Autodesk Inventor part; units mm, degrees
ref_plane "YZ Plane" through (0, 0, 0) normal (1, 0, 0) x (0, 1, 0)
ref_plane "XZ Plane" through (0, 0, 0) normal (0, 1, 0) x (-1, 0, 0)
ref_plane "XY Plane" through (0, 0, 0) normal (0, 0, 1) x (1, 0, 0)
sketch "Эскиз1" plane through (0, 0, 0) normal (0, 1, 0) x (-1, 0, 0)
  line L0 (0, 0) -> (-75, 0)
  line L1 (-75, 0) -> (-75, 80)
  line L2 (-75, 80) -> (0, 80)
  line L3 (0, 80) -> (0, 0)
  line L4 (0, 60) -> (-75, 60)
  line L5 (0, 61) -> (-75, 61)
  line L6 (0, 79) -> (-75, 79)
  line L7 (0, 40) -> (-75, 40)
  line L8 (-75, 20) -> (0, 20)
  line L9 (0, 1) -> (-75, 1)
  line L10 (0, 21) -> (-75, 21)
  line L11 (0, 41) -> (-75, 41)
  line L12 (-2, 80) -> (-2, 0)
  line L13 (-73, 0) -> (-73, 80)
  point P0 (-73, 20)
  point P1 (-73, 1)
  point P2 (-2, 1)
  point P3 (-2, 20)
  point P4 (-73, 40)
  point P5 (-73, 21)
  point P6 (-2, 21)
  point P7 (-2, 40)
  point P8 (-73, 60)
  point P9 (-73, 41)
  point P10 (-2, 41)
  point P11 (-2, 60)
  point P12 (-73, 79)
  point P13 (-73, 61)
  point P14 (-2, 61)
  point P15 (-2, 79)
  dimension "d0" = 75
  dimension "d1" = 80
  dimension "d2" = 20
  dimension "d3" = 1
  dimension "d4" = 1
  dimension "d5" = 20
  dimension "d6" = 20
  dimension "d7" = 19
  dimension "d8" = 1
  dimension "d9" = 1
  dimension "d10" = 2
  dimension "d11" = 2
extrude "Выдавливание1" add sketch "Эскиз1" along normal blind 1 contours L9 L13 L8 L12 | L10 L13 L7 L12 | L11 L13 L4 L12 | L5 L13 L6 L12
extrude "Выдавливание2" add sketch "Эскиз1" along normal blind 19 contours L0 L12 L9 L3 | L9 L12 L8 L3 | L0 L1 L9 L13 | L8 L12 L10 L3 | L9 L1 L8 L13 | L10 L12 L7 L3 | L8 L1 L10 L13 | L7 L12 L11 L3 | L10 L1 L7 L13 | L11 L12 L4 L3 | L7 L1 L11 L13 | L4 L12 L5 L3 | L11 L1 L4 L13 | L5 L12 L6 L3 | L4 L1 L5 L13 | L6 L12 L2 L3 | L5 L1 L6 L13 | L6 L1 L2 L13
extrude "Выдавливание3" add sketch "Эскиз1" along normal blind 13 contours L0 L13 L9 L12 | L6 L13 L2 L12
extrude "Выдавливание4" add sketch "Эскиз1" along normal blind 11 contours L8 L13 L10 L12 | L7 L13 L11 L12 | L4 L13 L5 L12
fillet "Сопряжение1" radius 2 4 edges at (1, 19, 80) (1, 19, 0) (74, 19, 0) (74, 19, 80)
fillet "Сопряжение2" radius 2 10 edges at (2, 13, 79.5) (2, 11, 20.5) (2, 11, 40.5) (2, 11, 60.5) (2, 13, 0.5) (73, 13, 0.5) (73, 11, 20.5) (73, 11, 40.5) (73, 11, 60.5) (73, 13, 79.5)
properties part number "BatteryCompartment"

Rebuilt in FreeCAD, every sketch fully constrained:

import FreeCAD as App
import Part
import Sketcher
Q = App.Units.Quantity


def edges_at(feature, points):
    """Names of the edges that pass closest to the given points."""
    edges = feature.Shape.Edges
    near = lambda p: min(range(len(edges)), key=lambda i: edges[i].distToShape(Part.Vertex(*p))[0])
    return sorted({f"Edge{near(p) + 1}" for p in points})


def add_polygon(sketch, points):
    """Adds a closed chain of lines whose ends are joined by coincident constraints."""
    first, n = sketch.GeometryCount, len(points)
    for a, b in zip(points, points[1:] + points[:1]):
        sketch.addGeometry(Part.LineSegment(App.Vector(*a, 0), App.Vector(*b, 0)), False)
    for i in range(n):
        sketch.addConstraint(Sketcher.Constraint("Coincident", first + i, 2, first + (i + 1) % n, 1))

doc = App.newDocument("Part")
body = doc.addObject("PartDesign::Body", "Body")
body.AllowCompound = True

sketch1 = body.newObject("Sketcher::SketchObject", "Sketch")
sketch1.AttachmentSupport = (doc.getObject("XZ_Plane"), [""])
sketch1.MapMode = "FlatFace"
add_polygon(sketch1, [(73, 1), (2, 1), (2, 20), (73, 20)])
add_polygon(sketch1, [(73, 21), (2, 21), (2, 40), (73, 40)])
add_polygon(sketch1, [(73, 41), (2, 41), (2, 60), (73, 60)])
add_polygon(sketch1, [(73, 61), (2, 61), (2, 79), (73, 79)])
sketch1.addConstraint(Sketcher.Constraint("Horizontal", 0))
sketch1.addConstraint(Sketcher.Constraint("Vertical", 1))
sketch1.addConstraint(Sketcher.Constraint("Horizontal", 2))
sketch1.addConstraint(Sketcher.Constraint("Vertical", 3))
sketch1.addConstraint(Sketcher.Constraint("Horizontal", 4))
sketch1.addConstraint(Sketcher.Constraint("Vertical", 5))
sketch1.addConstraint(Sketcher.Constraint("Horizontal", 6))
sketch1.addConstraint(Sketcher.Constraint("Vertical", 7))
sketch1.addConstraint(Sketcher.Constraint("Horizontal", 8))
sketch1.addConstraint(Sketcher.Constraint("Vertical", 9))
sketch1.addConstraint(Sketcher.Constraint("Horizontal", 10))
sketch1.addConstraint(Sketcher.Constraint("Vertical", 11))
sketch1.addConstraint(Sketcher.Constraint("Horizontal", 12))
sketch1.addConstraint(Sketcher.Constraint("Vertical", 13))
sketch1.addConstraint(Sketcher.Constraint("Horizontal", 14))
sketch1.addConstraint(Sketcher.Constraint("Vertical", 15))
sketch1.addConstraint(Sketcher.Constraint("Vertical", 1, 2, 4, 2))
sketch1.addConstraint(Sketcher.Constraint("Vertical", 3, 2, 6, 2))
sketch1.addConstraint(Sketcher.Constraint("Vertical", 5, 2, 8, 2))
sketch1.addConstraint(Sketcher.Constraint("Vertical", 7, 2, 10, 2))
sketch1.addConstraint(Sketcher.Constraint("Vertical", 9, 2, 12, 2))
sketch1.addConstraint(Sketcher.Constraint("Vertical", 11, 2, 14, 2))
sketch1.addConstraint(Sketcher.Constraint("Equal", 3, 5))
sketch1.addConstraint(Sketcher.Constraint("Equal", 7, 9))
sketch1.addConstraint(Sketcher.Constraint("DistanceY", 1, 1, 1, 2, Q("19 mm")))
sketch1.addConstraint(Sketcher.Constraint("DistanceX", -1, 1, 0, 2, Q("2 mm")))
sketch1.addConstraint(Sketcher.Constraint("DistanceY", -1, 1, 0, 2, Q("1 mm")))
sketch1.addConstraint(Sketcher.Constraint("DistanceY", 1, 2, 4, 2, Q("1 mm")))
sketch1.addConstraint(Sketcher.Constraint("DistanceY", 5, 2, 8, 2, Q("1 mm")))
sketch1.addConstraint(Sketcher.Constraint("DistanceY", 9, 2, 12, 2, Q("1 mm")))
sketch1.addConstraint(Sketcher.Constraint("DistanceY", 9, 2, 13, 2, Q("19 mm")))
sketch1.addConstraint(Sketcher.Constraint("DistanceX", 0, 2, 0, 1, Q("71 mm")))
pad1 = body.newObject("PartDesign::Pad", "Pad")
pad1.Profile = sketch1
pad1.Length = 1
pad1.Reversed = True

sketch2 = body.newObject("Sketcher::SketchObject", "Sketch001")
sketch2.AttachmentSupport = (doc.getObject("XZ_Plane"), [""])
sketch2.MapMode = "FlatFace"
add_polygon(sketch2, [(2, 0), (0, 0), (0, 80), (2, 80)])
add_polygon(sketch2, [(75, 0), (73, 0), (73, 80), (75, 80)])
sketch2.addConstraint(Sketcher.Constraint("Horizontal", 0))
sketch2.addConstraint(Sketcher.Constraint("Vertical", 1))
sketch2.addConstraint(Sketcher.Constraint("Horizontal", 2))
sketch2.addConstraint(Sketcher.Constraint("Vertical", 3))
sketch2.addConstraint(Sketcher.Constraint("Horizontal", 4))
sketch2.addConstraint(Sketcher.Constraint("Vertical", 5))
sketch2.addConstraint(Sketcher.Constraint("Horizontal", 6))
sketch2.addConstraint(Sketcher.Constraint("Vertical", 7))
sketch2.addConstraint(Sketcher.Constraint("Coincident", 0, 2, -1, 1))
sketch2.addConstraint(Sketcher.Constraint("PointOnObject", 4, 2, -1))
sketch2.addConstraint(Sketcher.Constraint("Horizontal", 2, 2, 5, 2))
sketch2.addConstraint(Sketcher.Constraint("Equal", 2, 4))
sketch2.addConstraint(Sketcher.Constraint("DistanceX", 0, 2, 0, 1, Q("2 mm")))
sketch2.addConstraint(Sketcher.Constraint("DistanceY", 1, 1, 1, 2, Q("80 mm")))
sketch2.addConstraint(Sketcher.Constraint("DistanceX", -1, 1, 6, 2, Q("75 mm")))
pad2 = body.newObject("PartDesign::Pad", "Pad001")
pad2.Profile = sketch2
pad2.Length = 19
pad2.Reversed = True

sketch3 = body.newObject("Sketcher::SketchObject", "Sketch002")
sketch3.AttachmentSupport = (doc.getObject("XZ_Plane"), [""])
sketch3.MapMode = "FlatFace"
add_polygon(sketch3, [(73, 0), (2, 0), (2, 1), (73, 1)])
add_polygon(sketch3, [(73, 79), (2, 79), (2, 80), (73, 80)])
sketch3.addConstraint(Sketcher.Constraint("Horizontal", 0))
sketch3.addConstraint(Sketcher.Constraint("Vertical", 1))
sketch3.addConstraint(Sketcher.Constraint("Horizontal", 2))
sketch3.addConstraint(Sketcher.Constraint("Vertical", 3))
sketch3.addConstraint(Sketcher.Constraint("Horizontal", 4))
sketch3.addConstraint(Sketcher.Constraint("Vertical", 5))
sketch3.addConstraint(Sketcher.Constraint("Horizontal", 6))
sketch3.addConstraint(Sketcher.Constraint("Vertical", 7))
sketch3.addConstraint(Sketcher.Constraint("PointOnObject", 0, 2, -1))
sketch3.addConstraint(Sketcher.Constraint("Vertical", 1, 2, 4, 2))
sketch3.addConstraint(Sketcher.Constraint("Vertical", 3, 2, 6, 2))
sketch3.addConstraint(Sketcher.Constraint("Equal", 3, 5))
sketch3.addConstraint(Sketcher.Constraint("DistanceY", 1, 1, 1, 2, Q("1 mm")))
sketch3.addConstraint(Sketcher.Constraint("DistanceX", -1, 1, 0, 2, Q("2 mm")))
sketch3.addConstraint(Sketcher.Constraint("DistanceY", -1, 1, 5, 2, Q("80 mm")))
sketch3.addConstraint(Sketcher.Constraint("DistanceX", 0, 2, 0, 1, Q("71 mm")))
pad3 = body.newObject("PartDesign::Pad", "Pad002")
pad3.Profile = sketch3
pad3.Length = 13
pad3.Reversed = True

sketch4 = body.newObject("Sketcher::SketchObject", "Sketch003")
sketch4.AttachmentSupport = (doc.getObject("XZ_Plane"), [""])
sketch4.MapMode = "FlatFace"
add_polygon(sketch4, [(73, 20), (2, 20), (2, 21), (73, 21)])
add_polygon(sketch4, [(73, 40), (2, 40), (2, 41), (73, 41)])
add_polygon(sketch4, [(73, 60), (2, 60), (2, 61), (73, 61)])
sketch4.addConstraint(Sketcher.Constraint("Horizontal", 0))
sketch4.addConstraint(Sketcher.Constraint("Vertical", 1))
sketch4.addConstraint(Sketcher.Constraint("Horizontal", 2))
sketch4.addConstraint(Sketcher.Constraint("Vertical", 3))
sketch4.addConstraint(Sketcher.Constraint("Horizontal", 4))
sketch4.addConstraint(Sketcher.Constraint("Vertical", 5))
sketch4.addConstraint(Sketcher.Constraint("Horizontal", 6))
sketch4.addConstraint(Sketcher.Constraint("Vertical", 7))
sketch4.addConstraint(Sketcher.Constraint("Horizontal", 8))
sketch4.addConstraint(Sketcher.Constraint("Vertical", 9))
sketch4.addConstraint(Sketcher.Constraint("Horizontal", 10))
sketch4.addConstraint(Sketcher.Constraint("Vertical", 11))
sketch4.addConstraint(Sketcher.Constraint("Vertical", 1, 2, 4, 2))
sketch4.addConstraint(Sketcher.Constraint("Vertical", 3, 2, 6, 2))
sketch4.addConstraint(Sketcher.Constraint("Vertical", 5, 2, 8, 2))
sketch4.addConstraint(Sketcher.Constraint("Vertical", 7, 2, 10, 2))
sketch4.addConstraint(Sketcher.Constraint("Equal", 3, 5))
sketch4.addConstraint(Sketcher.Constraint("Equal", 7, 9))
sketch4.addConstraint(Sketcher.Constraint("DistanceY", 1, 1, 1, 2, Q("1 mm")))
sketch4.addConstraint(Sketcher.Constraint("DistanceX", -1, 1, 0, 2, Q("2 mm")))
sketch4.addConstraint(Sketcher.Constraint("DistanceY", -1, 1, 0, 2, Q("20 mm")))
sketch4.addConstraint(Sketcher.Constraint("DistanceY", 1, 2, 4, 2, Q("19 mm")))
sketch4.addConstraint(Sketcher.Constraint("DistanceY", 5, 2, 8, 2, Q("19 mm")))
sketch4.addConstraint(Sketcher.Constraint("DistanceX", 0, 2, 0, 1, Q("71 mm")))
pad4 = body.newObject("PartDesign::Pad", "Pad003")
pad4.Profile = sketch4
pad4.Length = 11
pad4.Reversed = True
doc.recompute()

fillet = body.newObject("PartDesign::Fillet", "Fillet")
fillet.Base = (pad4, edges_at(pad4, [
    (1, 19, 80),
    (1, 19, 0),
    (74, 19, 0),
    (74, 19, 80),
]))
fillet.Radius = 2
doc.recompute()

fillet2 = body.newObject("PartDesign::Fillet", "Fillet001")
fillet2.Base = (fillet, edges_at(fillet, [
    (2, 13, 79.5),
    (2, 11, 20.5),
    (2, 11, 40.5),
    (2, 11, 60.5),
    (2, 13, 0.5),
    (73, 13, 0.5),
    (73, 11, 20.5),
    (73, 11, 40.5),
    (73, 11, 60.5),
    (73, 13, 79.5),
]))
fillet2.Radius = 2

doc.recompute()
